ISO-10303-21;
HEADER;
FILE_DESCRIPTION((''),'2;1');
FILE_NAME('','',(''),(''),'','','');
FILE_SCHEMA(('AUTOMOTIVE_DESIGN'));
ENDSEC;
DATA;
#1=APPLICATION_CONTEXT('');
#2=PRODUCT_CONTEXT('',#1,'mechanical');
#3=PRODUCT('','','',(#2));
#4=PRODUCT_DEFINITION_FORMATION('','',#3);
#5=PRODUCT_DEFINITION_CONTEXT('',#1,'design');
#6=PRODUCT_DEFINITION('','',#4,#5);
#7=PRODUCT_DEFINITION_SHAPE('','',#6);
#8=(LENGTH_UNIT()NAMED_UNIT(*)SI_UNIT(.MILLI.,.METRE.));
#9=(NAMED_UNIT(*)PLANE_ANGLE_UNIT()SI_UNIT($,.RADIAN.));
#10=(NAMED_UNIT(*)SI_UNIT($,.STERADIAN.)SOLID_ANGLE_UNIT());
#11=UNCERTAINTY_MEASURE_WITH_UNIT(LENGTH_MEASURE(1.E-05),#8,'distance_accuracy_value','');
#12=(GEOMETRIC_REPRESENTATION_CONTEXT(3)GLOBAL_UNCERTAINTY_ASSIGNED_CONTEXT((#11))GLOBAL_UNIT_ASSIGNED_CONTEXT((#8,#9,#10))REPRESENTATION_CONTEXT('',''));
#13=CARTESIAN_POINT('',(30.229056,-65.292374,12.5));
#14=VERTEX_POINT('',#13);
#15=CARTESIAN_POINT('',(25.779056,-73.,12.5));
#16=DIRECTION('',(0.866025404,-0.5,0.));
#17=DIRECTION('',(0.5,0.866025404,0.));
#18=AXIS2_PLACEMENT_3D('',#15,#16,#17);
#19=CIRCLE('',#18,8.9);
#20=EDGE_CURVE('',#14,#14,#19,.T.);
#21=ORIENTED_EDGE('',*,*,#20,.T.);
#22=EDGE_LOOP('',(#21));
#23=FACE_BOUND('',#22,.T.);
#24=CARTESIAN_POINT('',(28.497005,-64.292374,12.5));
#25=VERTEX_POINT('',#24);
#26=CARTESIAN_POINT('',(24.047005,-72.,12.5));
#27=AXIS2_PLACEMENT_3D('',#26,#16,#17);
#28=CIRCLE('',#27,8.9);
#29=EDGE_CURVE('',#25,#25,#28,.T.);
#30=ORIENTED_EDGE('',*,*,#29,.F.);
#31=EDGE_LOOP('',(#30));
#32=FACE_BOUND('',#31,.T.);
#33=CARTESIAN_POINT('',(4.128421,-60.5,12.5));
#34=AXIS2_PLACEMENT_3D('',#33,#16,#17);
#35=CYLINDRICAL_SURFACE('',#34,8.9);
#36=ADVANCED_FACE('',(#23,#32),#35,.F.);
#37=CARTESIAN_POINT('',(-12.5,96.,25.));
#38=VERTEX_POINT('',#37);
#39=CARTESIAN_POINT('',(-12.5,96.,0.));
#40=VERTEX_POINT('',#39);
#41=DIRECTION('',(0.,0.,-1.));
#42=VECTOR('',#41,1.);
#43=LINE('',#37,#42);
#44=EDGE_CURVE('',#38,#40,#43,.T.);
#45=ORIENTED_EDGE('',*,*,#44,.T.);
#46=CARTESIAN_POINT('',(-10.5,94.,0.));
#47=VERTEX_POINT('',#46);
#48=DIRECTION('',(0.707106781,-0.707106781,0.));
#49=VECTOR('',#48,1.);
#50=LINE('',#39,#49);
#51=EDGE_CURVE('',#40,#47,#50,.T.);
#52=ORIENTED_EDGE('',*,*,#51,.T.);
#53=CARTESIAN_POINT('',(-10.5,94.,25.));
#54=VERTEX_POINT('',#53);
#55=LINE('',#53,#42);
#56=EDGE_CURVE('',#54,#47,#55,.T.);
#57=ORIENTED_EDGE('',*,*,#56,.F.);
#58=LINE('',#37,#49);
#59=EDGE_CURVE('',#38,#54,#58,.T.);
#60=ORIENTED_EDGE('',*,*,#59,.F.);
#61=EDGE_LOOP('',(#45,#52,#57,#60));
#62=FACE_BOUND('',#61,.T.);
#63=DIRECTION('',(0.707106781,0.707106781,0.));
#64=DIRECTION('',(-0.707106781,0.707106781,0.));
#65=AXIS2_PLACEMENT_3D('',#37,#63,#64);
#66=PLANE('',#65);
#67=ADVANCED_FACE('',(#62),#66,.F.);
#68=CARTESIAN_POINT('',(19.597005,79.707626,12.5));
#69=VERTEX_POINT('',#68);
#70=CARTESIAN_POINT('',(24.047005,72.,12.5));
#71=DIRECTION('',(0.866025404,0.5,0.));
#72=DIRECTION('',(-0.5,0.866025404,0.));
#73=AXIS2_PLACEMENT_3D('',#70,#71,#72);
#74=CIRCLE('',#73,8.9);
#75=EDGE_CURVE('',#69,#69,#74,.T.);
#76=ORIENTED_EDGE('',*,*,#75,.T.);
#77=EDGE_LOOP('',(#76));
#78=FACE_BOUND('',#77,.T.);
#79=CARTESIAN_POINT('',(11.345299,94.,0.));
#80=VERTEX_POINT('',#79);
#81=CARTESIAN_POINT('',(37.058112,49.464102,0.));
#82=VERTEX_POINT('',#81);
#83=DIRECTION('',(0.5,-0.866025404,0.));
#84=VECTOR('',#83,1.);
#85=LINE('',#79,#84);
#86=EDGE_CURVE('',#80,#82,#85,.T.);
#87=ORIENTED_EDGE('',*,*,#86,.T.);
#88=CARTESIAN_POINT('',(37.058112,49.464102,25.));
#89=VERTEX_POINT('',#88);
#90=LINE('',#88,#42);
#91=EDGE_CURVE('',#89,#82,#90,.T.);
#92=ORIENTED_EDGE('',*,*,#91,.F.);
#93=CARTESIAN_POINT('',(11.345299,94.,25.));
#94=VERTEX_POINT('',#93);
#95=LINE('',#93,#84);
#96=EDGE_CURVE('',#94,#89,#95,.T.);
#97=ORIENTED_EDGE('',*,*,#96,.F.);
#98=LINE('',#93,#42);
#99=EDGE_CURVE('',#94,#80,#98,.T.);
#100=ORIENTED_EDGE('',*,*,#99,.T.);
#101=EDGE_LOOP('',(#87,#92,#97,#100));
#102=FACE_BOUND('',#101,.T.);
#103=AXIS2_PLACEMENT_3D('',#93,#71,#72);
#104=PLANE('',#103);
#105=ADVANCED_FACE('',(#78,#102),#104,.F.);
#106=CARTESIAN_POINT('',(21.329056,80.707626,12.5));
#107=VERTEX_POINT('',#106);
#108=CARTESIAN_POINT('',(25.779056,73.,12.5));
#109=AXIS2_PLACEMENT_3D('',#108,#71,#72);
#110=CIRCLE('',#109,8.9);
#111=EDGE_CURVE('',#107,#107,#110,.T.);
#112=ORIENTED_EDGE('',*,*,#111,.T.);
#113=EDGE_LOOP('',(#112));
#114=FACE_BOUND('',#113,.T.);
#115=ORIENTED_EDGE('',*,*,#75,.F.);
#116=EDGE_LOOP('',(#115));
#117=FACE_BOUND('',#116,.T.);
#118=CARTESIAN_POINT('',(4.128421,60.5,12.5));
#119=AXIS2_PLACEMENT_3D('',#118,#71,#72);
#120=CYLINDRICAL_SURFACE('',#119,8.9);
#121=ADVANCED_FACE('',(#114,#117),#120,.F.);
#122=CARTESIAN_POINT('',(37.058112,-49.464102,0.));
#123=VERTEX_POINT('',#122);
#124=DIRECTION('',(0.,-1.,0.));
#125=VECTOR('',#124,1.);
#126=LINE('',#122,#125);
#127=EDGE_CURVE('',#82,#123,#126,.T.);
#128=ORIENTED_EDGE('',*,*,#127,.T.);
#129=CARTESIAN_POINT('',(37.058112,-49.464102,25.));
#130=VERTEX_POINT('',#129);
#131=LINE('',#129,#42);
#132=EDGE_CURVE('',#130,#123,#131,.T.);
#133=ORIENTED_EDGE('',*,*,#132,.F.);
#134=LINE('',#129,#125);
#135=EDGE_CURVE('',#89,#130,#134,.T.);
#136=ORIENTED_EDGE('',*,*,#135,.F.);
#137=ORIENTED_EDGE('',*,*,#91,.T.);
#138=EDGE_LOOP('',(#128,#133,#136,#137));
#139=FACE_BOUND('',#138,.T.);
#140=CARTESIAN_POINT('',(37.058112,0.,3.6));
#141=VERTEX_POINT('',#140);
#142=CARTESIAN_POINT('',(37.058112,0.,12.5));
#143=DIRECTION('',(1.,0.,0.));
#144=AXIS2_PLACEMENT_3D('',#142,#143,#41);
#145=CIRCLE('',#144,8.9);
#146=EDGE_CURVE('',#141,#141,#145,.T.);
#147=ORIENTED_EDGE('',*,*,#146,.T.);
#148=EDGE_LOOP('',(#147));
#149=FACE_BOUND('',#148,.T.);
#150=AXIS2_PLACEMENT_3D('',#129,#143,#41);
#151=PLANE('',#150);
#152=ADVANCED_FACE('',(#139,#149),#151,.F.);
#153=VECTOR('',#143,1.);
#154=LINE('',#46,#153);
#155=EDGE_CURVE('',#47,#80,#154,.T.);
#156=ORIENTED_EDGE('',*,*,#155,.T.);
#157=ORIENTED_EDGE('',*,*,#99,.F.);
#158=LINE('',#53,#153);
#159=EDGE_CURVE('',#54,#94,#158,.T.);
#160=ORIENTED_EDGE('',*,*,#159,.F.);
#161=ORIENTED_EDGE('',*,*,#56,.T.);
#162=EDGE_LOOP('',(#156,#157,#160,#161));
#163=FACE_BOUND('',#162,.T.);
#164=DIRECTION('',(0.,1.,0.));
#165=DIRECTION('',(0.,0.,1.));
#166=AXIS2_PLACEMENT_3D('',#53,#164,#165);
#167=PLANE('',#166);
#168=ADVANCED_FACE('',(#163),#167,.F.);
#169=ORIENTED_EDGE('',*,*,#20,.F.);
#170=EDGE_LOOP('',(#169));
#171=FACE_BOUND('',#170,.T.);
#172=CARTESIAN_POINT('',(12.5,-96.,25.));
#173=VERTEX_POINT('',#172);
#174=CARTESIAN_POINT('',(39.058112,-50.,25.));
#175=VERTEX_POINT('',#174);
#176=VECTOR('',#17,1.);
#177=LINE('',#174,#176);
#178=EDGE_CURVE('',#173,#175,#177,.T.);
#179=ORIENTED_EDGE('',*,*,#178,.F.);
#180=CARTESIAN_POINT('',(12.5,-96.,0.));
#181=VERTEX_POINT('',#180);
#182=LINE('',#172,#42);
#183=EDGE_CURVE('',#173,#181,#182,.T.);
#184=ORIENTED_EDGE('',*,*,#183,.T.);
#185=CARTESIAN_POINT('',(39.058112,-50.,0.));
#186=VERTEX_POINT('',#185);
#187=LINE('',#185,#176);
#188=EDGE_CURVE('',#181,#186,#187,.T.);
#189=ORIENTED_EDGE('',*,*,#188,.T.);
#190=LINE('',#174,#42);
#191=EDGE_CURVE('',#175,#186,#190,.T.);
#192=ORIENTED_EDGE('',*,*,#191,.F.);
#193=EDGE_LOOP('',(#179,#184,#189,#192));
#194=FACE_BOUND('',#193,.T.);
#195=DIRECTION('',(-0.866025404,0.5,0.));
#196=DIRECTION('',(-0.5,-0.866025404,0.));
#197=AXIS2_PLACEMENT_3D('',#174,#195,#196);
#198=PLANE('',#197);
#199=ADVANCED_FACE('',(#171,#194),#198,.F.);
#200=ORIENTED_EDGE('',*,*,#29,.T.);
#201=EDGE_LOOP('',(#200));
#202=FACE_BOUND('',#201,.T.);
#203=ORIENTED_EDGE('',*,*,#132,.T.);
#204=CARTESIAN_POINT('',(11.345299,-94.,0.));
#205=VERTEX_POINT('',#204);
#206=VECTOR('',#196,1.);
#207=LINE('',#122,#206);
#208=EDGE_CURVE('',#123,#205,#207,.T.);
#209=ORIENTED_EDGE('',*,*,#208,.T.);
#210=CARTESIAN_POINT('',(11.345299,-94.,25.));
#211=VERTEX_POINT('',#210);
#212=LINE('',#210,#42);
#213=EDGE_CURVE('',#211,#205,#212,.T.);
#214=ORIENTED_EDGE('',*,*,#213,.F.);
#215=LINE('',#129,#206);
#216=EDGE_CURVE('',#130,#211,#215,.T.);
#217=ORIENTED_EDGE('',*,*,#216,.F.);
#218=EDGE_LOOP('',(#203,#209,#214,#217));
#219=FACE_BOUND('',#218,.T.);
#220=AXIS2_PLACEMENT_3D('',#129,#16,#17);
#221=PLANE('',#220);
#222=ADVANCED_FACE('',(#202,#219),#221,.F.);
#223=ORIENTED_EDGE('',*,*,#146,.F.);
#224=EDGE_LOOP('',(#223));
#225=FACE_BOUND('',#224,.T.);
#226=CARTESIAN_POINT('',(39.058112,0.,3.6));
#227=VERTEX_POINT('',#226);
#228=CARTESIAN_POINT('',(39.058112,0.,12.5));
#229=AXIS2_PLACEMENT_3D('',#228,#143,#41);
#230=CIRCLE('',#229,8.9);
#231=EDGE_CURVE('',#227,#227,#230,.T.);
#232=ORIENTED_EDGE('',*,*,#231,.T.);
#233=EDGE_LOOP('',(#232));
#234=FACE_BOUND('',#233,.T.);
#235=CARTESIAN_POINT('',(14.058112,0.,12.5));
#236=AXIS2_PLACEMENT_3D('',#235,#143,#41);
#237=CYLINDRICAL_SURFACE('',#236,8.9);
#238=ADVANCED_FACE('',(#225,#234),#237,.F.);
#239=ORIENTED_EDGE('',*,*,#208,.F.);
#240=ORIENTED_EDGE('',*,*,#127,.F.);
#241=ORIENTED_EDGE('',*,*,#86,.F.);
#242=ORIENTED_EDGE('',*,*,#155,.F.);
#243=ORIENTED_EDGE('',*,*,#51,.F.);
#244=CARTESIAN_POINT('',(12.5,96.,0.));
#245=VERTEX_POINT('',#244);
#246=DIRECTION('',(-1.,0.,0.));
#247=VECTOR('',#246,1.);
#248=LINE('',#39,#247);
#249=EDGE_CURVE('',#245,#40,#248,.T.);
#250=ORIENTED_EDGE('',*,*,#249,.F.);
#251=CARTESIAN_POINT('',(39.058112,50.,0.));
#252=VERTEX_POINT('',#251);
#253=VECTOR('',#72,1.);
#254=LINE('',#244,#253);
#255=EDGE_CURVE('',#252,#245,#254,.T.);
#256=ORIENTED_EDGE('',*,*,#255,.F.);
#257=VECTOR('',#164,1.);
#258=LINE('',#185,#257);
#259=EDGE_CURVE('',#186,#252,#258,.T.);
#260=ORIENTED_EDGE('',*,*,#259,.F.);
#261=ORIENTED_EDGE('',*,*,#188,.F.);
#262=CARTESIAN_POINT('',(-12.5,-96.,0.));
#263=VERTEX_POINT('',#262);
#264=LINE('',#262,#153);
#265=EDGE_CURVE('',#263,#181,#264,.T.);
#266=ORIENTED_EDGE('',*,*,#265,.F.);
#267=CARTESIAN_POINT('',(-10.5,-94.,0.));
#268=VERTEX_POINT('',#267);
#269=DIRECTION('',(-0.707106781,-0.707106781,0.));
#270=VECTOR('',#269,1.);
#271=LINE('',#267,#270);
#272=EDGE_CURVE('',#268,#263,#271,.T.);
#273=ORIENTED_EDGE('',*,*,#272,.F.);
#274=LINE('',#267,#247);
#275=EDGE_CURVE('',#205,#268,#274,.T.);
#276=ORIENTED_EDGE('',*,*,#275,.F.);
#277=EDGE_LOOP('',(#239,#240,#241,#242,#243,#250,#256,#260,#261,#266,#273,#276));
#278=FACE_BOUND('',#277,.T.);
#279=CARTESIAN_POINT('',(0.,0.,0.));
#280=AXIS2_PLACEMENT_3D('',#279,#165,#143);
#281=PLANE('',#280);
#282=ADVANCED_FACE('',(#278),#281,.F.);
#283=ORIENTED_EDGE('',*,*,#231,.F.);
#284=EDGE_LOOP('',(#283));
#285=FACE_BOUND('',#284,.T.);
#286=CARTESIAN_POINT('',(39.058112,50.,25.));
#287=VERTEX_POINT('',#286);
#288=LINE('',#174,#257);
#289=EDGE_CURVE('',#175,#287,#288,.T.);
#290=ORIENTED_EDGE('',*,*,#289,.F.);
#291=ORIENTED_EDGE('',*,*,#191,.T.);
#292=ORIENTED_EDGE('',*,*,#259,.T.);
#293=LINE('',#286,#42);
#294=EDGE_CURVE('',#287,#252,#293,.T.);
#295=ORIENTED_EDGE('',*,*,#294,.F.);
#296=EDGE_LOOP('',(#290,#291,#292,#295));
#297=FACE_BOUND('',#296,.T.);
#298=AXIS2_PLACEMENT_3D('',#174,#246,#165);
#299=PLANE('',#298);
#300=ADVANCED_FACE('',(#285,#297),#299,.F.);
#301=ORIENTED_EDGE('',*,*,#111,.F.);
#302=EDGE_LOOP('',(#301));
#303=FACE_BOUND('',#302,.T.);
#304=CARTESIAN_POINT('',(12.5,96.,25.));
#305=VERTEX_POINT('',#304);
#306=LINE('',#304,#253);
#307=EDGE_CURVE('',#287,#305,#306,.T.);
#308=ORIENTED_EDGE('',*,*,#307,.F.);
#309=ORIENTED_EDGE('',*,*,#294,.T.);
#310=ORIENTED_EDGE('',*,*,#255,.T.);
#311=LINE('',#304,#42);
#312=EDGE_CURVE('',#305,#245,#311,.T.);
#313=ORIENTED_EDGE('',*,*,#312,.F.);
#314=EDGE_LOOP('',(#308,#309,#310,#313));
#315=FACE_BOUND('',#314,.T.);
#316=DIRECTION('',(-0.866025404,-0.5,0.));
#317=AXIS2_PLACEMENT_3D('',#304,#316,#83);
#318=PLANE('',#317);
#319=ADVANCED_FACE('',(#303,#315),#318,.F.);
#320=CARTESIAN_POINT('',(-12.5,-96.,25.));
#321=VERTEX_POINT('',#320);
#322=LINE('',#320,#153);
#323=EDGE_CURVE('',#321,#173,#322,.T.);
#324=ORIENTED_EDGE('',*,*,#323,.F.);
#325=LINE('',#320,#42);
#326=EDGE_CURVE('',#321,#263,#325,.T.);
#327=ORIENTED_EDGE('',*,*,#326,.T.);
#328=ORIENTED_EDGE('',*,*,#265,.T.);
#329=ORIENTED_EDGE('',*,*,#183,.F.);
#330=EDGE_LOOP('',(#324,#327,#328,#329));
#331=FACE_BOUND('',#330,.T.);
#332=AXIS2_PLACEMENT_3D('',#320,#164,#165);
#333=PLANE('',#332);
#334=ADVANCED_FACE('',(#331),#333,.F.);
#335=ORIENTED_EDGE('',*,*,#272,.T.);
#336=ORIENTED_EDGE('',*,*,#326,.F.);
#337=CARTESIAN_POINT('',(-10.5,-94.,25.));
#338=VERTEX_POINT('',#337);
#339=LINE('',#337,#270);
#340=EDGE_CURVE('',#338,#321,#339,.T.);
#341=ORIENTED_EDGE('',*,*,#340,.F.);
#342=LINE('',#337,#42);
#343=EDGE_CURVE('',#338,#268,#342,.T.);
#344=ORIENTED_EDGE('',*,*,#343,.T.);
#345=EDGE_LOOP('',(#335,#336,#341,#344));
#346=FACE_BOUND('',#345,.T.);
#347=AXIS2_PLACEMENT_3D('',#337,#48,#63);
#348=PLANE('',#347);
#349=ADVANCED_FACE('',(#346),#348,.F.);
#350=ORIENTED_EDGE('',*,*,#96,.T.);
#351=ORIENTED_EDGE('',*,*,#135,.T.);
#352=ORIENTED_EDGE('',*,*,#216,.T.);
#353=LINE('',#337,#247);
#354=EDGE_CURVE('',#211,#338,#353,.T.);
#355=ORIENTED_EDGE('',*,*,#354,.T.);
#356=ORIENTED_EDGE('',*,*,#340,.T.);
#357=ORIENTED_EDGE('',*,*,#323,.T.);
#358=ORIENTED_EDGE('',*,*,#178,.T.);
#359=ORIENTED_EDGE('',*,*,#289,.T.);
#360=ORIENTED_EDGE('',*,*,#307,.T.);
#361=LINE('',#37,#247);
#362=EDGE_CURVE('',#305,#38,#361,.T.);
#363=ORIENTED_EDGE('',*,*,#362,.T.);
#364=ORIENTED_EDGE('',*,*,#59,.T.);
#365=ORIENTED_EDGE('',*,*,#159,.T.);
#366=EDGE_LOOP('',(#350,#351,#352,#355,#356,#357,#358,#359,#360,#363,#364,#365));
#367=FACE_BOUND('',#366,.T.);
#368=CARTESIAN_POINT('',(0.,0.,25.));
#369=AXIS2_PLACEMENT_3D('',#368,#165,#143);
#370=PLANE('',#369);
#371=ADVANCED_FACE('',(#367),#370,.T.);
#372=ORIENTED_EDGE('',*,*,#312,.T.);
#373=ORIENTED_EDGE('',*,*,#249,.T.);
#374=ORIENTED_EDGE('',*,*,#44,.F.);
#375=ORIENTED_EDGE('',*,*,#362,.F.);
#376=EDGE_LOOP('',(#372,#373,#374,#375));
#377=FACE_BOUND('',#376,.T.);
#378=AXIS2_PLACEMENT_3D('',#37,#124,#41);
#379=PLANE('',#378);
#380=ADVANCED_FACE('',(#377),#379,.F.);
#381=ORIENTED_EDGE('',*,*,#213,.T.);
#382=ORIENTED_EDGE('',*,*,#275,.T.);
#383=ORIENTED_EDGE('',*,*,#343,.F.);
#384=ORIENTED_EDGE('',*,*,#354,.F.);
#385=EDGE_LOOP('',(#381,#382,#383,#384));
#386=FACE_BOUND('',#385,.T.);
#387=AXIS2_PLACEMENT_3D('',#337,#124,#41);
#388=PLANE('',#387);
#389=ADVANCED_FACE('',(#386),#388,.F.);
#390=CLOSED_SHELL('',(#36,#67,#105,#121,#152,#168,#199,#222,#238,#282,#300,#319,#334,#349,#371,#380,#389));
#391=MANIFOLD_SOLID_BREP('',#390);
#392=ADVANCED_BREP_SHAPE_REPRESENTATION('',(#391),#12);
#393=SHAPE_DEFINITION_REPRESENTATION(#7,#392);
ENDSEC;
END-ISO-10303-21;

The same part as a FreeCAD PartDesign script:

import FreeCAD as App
import Part
import Sketcher
Q = App.Units.Quantity

doc = App.newDocument("Part")
body = doc.addObject("PartDesign::Body", "Body")

sketch1 = body.newObject("Sketcher::SketchObject", "Sketch")
sketch1.AttachmentSupport = (doc.getObject("XY_Plane"), [""])
sketch1.MapMode = "FlatFace"
sketch1.addGeometry([
    Part.LineSegment(App.Vector(39.058112, 50, 0), App.Vector(12.5, 96, 0)),
    Part.LineSegment(App.Vector(12.5, 96, 0), App.Vector(-12.5, 96, 0)),
    Part.LineSegment(App.Vector(-12.5, 96, 0), App.Vector(-10.5, 94, 0)),
    Part.LineSegment(App.Vector(-10.5, 94, 0), App.Vector(11.345299, 94, 0)),
    Part.LineSegment(App.Vector(11.345299, 94, 0), App.Vector(37.058112, 49.464102, 0)),
    Part.LineSegment(App.Vector(37.058112, 49.464102, 0), App.Vector(37.058112, -49.464102, 0)),
    Part.LineSegment(App.Vector(37.058112, -49.464102, 0), App.Vector(11.345299, -94, 0)),
    Part.LineSegment(App.Vector(11.345299, -94, 0), App.Vector(-10.5, -94, 0)),
    Part.LineSegment(App.Vector(-10.5, -94, 0), App.Vector(-12.5, -96, 0)),
    Part.LineSegment(App.Vector(-12.5, -96, 0), App.Vector(12.5, -96, 0)),
    Part.LineSegment(App.Vector(12.5, -96, 0), App.Vector(39.058112, -50, 0)),
    Part.LineSegment(App.Vector(39.058112, -50, 0), App.Vector(39.058112, 50, 0)),
], False)
sketch1.addConstraint([
    Sketcher.Constraint("Coincident", 0, 2, 1, 1),
    Sketcher.Constraint("Coincident", 1, 2, 2, 1),
    Sketcher.Constraint("Coincident", 2, 2, 3, 1),
    Sketcher.Constraint("Coincident", 3, 2, 4, 1),
    Sketcher.Constraint("Coincident", 4, 2, 5, 1),
    Sketcher.Constraint("Coincident", 5, 2, 6, 1),
    Sketcher.Constraint("Coincident", 6, 2, 7, 1),
    Sketcher.Constraint("Coincident", 7, 2, 8, 1),
    Sketcher.Constraint("Coincident", 8, 2, 9, 1),
    Sketcher.Constraint("Coincident", 9, 2, 10, 1),
    Sketcher.Constraint("Coincident", 10, 2, 11, 1),
    Sketcher.Constraint("Coincident", 11, 2, 0, 1),
    Sketcher.Constraint("Horizontal", 1),
    Sketcher.Constraint("Horizontal", 3),
    Sketcher.Constraint("Vertical", 5),
    Sketcher.Constraint("Horizontal", 7),
    Sketcher.Constraint("Horizontal", 9),
    Sketcher.Constraint("Vertical", 11),
    Sketcher.Constraint("Symmetric", 0, 2, 8, 2, -1, 1),
    Sketcher.Constraint("Symmetric", 3, 2, 6, 2, -1),
    Sketcher.Constraint("Parallel", 0, 4),
    Sketcher.Constraint("Perpendicular", 2, 8),
    Sketcher.Constraint("Parallel", 6, 10),
    Sketcher.Constraint("Vertical", 2, 2, 7, 2),
    Sketcher.Constraint("Vertical", 1, 2, 8, 2),
    Sketcher.Constraint("Vertical", 0, 2, 9, 2),
    Sketcher.Constraint("Equal", 4, 6),
    Sketcher.Constraint("DistanceX", 1, 2, 1, 1, Q("25 mm")),
    Sketcher.Constraint("DistanceY", 11, 1, 11, 2, Q("100 mm")),
    Sketcher.Constraint("Angle", 0, Q("120 deg")),
    Sketcher.Constraint("DistanceY", -1, 1, 0, 2, Q("96 mm")),
    Sketcher.Constraint("DistanceY", -1, 1, 2, 2, Q("94 mm")),
    Sketcher.Constraint("DistanceX", 5, 2, 10, 2, Q("2 mm")),
    Sketcher.Constraint("DistanceX", 3, 1, 3, 2, Q("21.845299 mm")),
])
pad1 = body.newObject("PartDesign::Pad", "Pad")
pad1.Profile = sketch1
pad1.Length = 25

sketch2 = body.newObject("Sketcher::SketchObject", "Sketch001")
sketch2.AttachmentSupport = (doc.getObject("YZ_Plane"), [""])
sketch2.MapMode = "FlatFace"
sketch2.AttachmentOffset = App.Placement(App.Vector(0, 0, 39.058112), App.Rotation())
sketch2.addGeometry(Part.Circle(App.Vector(0, 12.5, 0), App.Vector(0, 0, 1), 8.9), False)
sketch2.addConstraint([
    Sketcher.Constraint("PointOnObject", 0, 3, -2),
    Sketcher.Constraint("Diameter", 0, Q("17.8 mm")),
    Sketcher.Constraint("DistanceY", -1, 1, 0, 3, Q("12.5 mm")),
])
pocket1 = body.newObject("PartDesign::Pocket", "Pocket")
pocket1.Profile = sketch2
pocket1.Length = 25

sketch3 = body.newObject("Sketcher::SketchObject", "Sketch002")
sketch3.Placement = App.Placement(App.Vector(50.944219, 29.412659, 0), App.Rotation(App.Vector(0, 0, -1), App.Vector(-0.5, 0.866025404, 0), App.Vector(0.866025404, 0.5, 0), "ZXY"))
sketch3.addGeometry(Part.Circle(App.Vector(-12.5, 50.330326, 0), App.Vector(0, 0, 1), 8.9), False)
sketch3.addConstraint([
    Sketcher.Constraint("Diameter", 0, Q("17.8 mm")),
    Sketcher.Constraint("DistanceX", 0, 3, -1, 1, Q("12.5 mm")),
    Sketcher.Constraint("DistanceY", -1, 1, 0, 3, Q("50.330326 mm")),
])
pocket2 = body.newObject("PartDesign::Pocket", "Pocket001")
pocket2.Profile = sketch3
pocket2.Length = 25

sketch4 = body.newObject("Sketcher::SketchObject", "Sketch003")
sketch4.Placement = App.Placement(App.Vector(50.944219, -29.412659, 0), App.Rotation(App.Vector(0, 0, -1), App.Vector(0.5, 0.866025404, 0), App.Vector(0.866025404, -0.5, 0), "ZXY"))
sketch4.addGeometry(Part.Circle(App.Vector(-12.5, -50.330326, 0), App.Vector(0, 0, 1), 8.9), False)
sketch4.addConstraint([
    Sketcher.Constraint("Diameter", 0, Q("17.8 mm")),
    Sketcher.Constraint("DistanceX", 0, 3, -1, 1, Q("12.5 mm")),
    Sketcher.Constraint("DistanceY", 0, 3, -1, 1, Q("50.330326 mm")),
])
pocket3 = body.newObject("PartDesign::Pocket", "Pocket002")
pocket3.Profile = sketch4
pocket3.Length = 25

doc.recompute()
